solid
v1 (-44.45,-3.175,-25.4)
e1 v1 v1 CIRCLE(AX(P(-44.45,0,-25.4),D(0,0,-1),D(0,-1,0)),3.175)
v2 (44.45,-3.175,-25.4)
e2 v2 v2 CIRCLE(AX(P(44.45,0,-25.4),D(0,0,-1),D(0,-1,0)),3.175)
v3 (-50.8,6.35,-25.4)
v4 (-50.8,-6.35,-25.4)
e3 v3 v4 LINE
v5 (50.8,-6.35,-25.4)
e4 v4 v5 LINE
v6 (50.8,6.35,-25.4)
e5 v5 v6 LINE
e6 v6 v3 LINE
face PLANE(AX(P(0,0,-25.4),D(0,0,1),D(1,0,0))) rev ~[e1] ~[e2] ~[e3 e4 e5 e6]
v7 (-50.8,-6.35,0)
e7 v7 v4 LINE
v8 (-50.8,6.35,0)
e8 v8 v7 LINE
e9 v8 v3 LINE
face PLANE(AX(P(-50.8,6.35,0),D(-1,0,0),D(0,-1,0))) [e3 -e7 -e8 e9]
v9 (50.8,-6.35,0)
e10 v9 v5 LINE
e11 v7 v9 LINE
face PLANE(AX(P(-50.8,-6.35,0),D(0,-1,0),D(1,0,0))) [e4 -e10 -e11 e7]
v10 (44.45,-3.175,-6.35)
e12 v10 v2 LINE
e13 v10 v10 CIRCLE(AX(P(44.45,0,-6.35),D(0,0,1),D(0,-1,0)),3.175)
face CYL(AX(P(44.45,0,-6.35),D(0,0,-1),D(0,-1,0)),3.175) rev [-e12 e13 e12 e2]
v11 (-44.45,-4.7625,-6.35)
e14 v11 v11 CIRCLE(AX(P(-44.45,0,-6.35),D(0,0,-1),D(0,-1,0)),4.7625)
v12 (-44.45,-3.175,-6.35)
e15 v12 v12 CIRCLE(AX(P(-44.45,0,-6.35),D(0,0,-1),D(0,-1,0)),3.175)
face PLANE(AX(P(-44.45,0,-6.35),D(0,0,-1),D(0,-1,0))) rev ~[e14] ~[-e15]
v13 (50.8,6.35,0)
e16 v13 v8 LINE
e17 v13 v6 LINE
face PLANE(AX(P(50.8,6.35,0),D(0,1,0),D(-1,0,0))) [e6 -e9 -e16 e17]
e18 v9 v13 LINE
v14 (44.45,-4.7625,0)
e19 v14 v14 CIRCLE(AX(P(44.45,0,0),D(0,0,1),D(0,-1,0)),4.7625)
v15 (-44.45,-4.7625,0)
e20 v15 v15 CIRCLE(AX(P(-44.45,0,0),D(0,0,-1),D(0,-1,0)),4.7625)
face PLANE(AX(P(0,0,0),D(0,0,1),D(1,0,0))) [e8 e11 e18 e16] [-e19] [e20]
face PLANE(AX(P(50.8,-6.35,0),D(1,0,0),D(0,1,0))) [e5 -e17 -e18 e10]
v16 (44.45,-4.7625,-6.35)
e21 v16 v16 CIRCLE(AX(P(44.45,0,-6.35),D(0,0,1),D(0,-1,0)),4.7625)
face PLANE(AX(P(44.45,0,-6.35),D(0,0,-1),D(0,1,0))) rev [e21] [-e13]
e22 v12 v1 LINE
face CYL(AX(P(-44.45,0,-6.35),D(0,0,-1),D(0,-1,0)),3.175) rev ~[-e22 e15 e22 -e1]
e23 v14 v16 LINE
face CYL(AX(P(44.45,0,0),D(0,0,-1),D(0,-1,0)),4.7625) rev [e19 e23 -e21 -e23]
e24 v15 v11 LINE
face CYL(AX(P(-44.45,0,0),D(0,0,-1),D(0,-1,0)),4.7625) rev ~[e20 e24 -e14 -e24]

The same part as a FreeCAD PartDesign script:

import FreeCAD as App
import Part
import Sketcher
Q = App.Units.Quantity

doc = App.newDocument("Part")
params = doc.addObject("Spreadsheet::Sheet", "Params")
for row, (alias, value) in enumerate([
    ("sketch1_width", "4 in"),
    ("sketch1_height", "0.5 in"),
    ("pad1_length", "1 in"),
    ("sketch2_diameter", "0.25 in"),
    ("hole_diameter", "0.25 in"),
    ("hole_cbore_diameter", "0.375 in"),
    ("hole_cbore_depth", "0.25 in"),
], start=1):
    params.set(f"A{row}", alias)
    params.set(f"B{row}", "=" + value)
    params.setAlias(f"B{row}", alias)

body = doc.addObject("PartDesign::Body", "Body")

# Sketch on XY plane
sketch1 = body.newObject("Sketcher::SketchObject", "Sketch")
sketch1.AttachmentSupport = (doc.getObject("XY_Plane"), [""])
sketch1.MapMode = "FlatFace"
sketch1.addGeometry([
    Part.LineSegment(App.Vector(51, -6, 0), App.Vector(51, 6, 0)),
    Part.LineSegment(App.Vector(51, 6, 0), App.Vector(-51, 6, 0)),
    Part.LineSegment(App.Vector(-51, 6, 0), App.Vector(-51, -6, 0)),
    Part.LineSegment(App.Vector(-51, -6, 0), App.Vector(51, -6, 0)),
], False)
sketch1.addConstraint([
    Sketcher.Constraint("Coincident", 0, 2, 1, 1),
    Sketcher.Constraint("Coincident", 1, 2, 2, 1),
    Sketcher.Constraint("Coincident", 2, 2, 3, 1),
    Sketcher.Constraint("Coincident", 3, 2, 0, 1),
    Sketcher.Constraint("Vertical", 0),
    Sketcher.Constraint("Horizontal", 1),
    Sketcher.Constraint("Vertical", 2),
    Sketcher.Constraint("Horizontal", 3),
    Sketcher.Constraint("Symmetric", 0, 2, 2, 2, -1, 1),
    Sketcher.Constraint("DistanceX", 1, 2, 1, 1, Q("4 in")),
    Sketcher.Constraint("DistanceY", 0, 1, 0, 2, Q("0.5 in")),
])
sketch1.setExpression("Constraints[9]", "Params.sketch1_width")
sketch1.setExpression("Constraints[10]", "Params.sketch1_height")
pad1 = body.newObject("PartDesign::Pad", "Pad")
pad1.Profile = sketch1
pad1.setExpression("Length", "Params.pad1_length")
pad1.Reversed = True

# Sketch on XY plane
sketch2 = body.newObject("Sketcher::SketchObject", "Sketch001")
sketch2.AttachmentSupport = (doc.getObject("XY_Plane"), [""])
sketch2.MapMode = "FlatFace"
sketch2.addGeometry(Part.Circle(App.Vector(-44.5, 0, 0), App.Vector(0, 0, 1), 3.2), False)
sketch2.addConstraint([
    Sketcher.Constraint("PointOnObject", 0, 3, -1),
    Sketcher.Constraint("Diameter", 0, Q("0.25 in")),
    Sketcher.Constraint("DistanceX", 0, 3, -1, 1, Q("1.75 in")),
])
sketch2.setExpression("Constraints[1]", "Params.sketch2_diameter")
doc.recompute()
hole = body.newObject("PartDesign::Hole", "Hole")
hole.Profile = sketch2
hole.ThreadType = "None"
hole.setExpression("Diameter", "Params.hole_diameter")
hole.DepthType = "ThroughAll"
hole.HoleCutType = "Counterbore"
hole.setExpression("HoleCutDiameter", "Params.hole_cbore_diameter")
hole.setExpression("HoleCutDepth", "Params.hole_cbore_depth")
doc.recompute()

mirrored = body.newObject("PartDesign::Mirrored", "Mirrored")
mirrored.Originals = [hole]
mirrored.MirrorPlane = (doc.getObject("YZ_Plane"), [""])
body.Tip = mirrored

doc.recompute()
